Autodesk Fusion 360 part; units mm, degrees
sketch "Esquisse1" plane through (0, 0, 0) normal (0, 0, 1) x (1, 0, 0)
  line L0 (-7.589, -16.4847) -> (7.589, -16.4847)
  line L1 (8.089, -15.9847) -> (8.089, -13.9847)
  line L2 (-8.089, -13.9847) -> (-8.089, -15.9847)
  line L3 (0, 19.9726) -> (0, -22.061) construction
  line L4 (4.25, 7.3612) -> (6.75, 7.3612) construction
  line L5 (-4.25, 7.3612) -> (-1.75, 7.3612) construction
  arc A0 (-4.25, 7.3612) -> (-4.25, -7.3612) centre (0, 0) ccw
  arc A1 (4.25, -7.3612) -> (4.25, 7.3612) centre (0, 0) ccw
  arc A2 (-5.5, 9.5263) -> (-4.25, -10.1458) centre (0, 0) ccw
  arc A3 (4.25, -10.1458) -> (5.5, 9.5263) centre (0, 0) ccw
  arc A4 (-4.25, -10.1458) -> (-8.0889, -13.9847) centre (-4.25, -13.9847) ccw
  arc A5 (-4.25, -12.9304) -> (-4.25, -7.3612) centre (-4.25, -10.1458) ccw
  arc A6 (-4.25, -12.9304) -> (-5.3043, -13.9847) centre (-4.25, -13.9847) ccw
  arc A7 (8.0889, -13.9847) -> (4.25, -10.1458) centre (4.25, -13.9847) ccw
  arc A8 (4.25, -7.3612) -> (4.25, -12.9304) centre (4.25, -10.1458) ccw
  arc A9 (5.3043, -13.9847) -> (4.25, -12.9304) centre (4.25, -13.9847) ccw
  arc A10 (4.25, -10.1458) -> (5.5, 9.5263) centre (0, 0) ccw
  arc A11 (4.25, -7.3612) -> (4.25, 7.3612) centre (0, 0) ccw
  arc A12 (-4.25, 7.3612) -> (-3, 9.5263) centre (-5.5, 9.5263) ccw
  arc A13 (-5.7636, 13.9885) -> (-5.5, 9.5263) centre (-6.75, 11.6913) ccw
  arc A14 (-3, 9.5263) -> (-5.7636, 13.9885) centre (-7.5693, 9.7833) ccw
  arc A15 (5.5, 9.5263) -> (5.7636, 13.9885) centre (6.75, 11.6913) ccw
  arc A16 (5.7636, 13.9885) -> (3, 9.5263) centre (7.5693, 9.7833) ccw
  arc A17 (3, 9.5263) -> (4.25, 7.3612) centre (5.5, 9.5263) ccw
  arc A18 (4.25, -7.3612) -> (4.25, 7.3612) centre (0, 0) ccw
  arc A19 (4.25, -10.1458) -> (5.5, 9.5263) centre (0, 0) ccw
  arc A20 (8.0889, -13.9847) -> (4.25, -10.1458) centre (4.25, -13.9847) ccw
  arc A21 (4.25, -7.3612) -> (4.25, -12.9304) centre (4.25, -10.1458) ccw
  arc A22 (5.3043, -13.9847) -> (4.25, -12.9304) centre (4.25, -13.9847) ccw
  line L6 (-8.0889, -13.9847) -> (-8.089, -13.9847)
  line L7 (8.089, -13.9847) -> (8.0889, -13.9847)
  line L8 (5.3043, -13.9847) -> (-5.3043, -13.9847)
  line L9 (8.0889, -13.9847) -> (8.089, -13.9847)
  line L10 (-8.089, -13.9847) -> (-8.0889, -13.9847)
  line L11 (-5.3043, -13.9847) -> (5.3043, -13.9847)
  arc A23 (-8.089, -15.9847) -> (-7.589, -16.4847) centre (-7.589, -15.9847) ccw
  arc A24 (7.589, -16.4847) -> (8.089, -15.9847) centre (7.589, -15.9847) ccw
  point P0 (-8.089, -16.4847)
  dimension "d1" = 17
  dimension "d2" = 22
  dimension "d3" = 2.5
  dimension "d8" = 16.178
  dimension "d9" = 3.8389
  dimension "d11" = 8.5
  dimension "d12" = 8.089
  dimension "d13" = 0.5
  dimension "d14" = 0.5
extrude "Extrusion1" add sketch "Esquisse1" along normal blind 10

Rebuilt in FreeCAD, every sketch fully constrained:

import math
import FreeCAD as App
import Part
import Sketcher
from FreeCAD import Vector
Q = App.Units.Quantity

doc = App.newDocument("Part")
body = doc.addObject("PartDesign::Body", "Body")

sketch1 = body.newObject("Sketcher::SketchObject", "Sketch")
sketch1.AttachmentSupport = (doc.getObject("XY_Plane"), [""])
sketch1.MapMode = "FlatFace"
sketch1.addGeometry([
    Part.ArcOfCircle(Part.Circle(Vector(-7.6, -16, 0), Vector(0, 0, 1), 0.5), math.radians(180), math.radians(270)),
    Part.LineSegment(Vector(-7.6, -16.5, 0), Vector(7.6, -16.5, 0)),
    Part.ArcOfCircle(Part.Circle(Vector(7.6, -16, 0), Vector(0, 0, 1), 0.5), math.radians(-90), math.radians(0)),
    Part.LineSegment(Vector(8.1, -16, 0), Vector(8.1, -14, 0)),
    Part.ArcOfCircle(Part.Circle(Vector(4.2, -14, 0), Vector(0, 0, 1), 3.8), math.radians(0), math.radians(90)),
    Part.ArcOfCircle(Part.Circle(Vector(0, 0, 0), Vector(0, 0, 1), 11), math.radians(-67), math.radians(60)),
    Part.ArcOfCircle(Part.Circle(Vector(6.8, 11.7, 0), Vector(0, 0, 1), 2.5), math.radians(-120), math.radians(113)),
    Part.ArcOfCircle(Part.Circle(Vector(7.6, 9.8, 0), Vector(0, 0, 1), 4.6), math.radians(113), math.radians(183)),
    Part.ArcOfCircle(Part.Circle(Vector(5.5, 9.5, 0), Vector(0, 0, 1), 2.5), math.radians(180), math.radians(240)),
    Part.ArcOfCircle(Part.Circle(Vector(0, 0, 0), Vector(0, 0, 1), 8.5), math.radians(-60), math.radians(60)),
    Part.ArcOfCircle(Part.Circle(Vector(4.2, -10.1, 0), Vector(0, 0, 1), 2.8), math.radians(90), math.radians(270)),
    Part.ArcOfCircle(Part.Circle(Vector(4.2, -14, 0), Vector(0, 0, 1), 1.1), math.radians(0), math.radians(90)),
    Part.LineSegment(Vector(5.3, -14, 0), Vector(-5.3, -14, 0)),
    Part.ArcOfCircle(Part.Circle(Vector(-4.2, -14, 0), Vector(0, 0, 1), 1.1), math.radians(90), math.radians(180)),
    Part.ArcOfCircle(Part.Circle(Vector(-4.2, -10.1, 0), Vector(0, 0, 1), 2.8), math.radians(-90), math.radians(90)),
    Part.ArcOfCircle(Part.Circle(Vector(0, 0, 0), Vector(0, 0, 1), 8.5), math.radians(120), math.radians(240)),
    Part.ArcOfCircle(Part.Circle(Vector(-5.5, 9.5, 0), Vector(0, 0, 1), 2.5), math.radians(-60), math.radians(0)),
    Part.ArcOfCircle(Part.Circle(Vector(-7.6, 9.8, 0), Vector(0, 0, 1), 4.6), math.radians(-3), math.radians(67)),
    Part.ArcOfCircle(Part.Circle(Vector(-6.8, 11.7, 0), Vector(0, 0, 1), 2.5), math.radians(67), math.radians(300)),
    Part.ArcOfCircle(Part.Circle(Vector(0, 0, 0), Vector(0, 0, 1), 11), math.radians(120), math.radians(247)),
    Part.ArcOfCircle(Part.Circle(Vector(-4.2, -14, 0), Vector(0, 0, 1), 3.8), math.radians(90), math.radians(180)),
    Part.LineSegment(Vector(-8.1, -14, 0), Vector(-8.1, -16, 0)),
], False)
sketch1.addConstraint([
    Sketcher.Constraint("Tangent", 0, 2, 1, 1),
    Sketcher.Constraint("Tangent", 1, 2, 2, 1),
    Sketcher.Constraint("Tangent", 2, 2, 3, 1),
    Sketcher.Constraint("Tangent", 3, 2, 4, 1),
    Sketcher.Constraint("Coincident", 4, 2, 5, 1),
    Sketcher.Constraint("Tangent", 5, 2, 6, 1),
    Sketcher.Constraint("Tangent", 6, 2, 7, 1),
    Sketcher.Constraint("Coincident", 7, 2, 8, 1),
    Sketcher.Constraint("Tangent", 8, 2, 9, 2),
    Sketcher.Constraint("Coincident", 9, 1, 10, 1),
    Sketcher.Constraint("Tangent", 10, 2, 11, 2),
    Sketcher.Constraint("Coincident", 11, 1, 12, 1),
    Sketcher.Constraint("Coincident", 12, 2, 13, 2),
    Sketcher.Constraint("Tangent", 13, 1, 14, 1),
    Sketcher.Constraint("Coincident", 14, 2, 15, 2),
    Sketcher.Constraint("Tangent", 15, 1, 16, 1),
    Sketcher.Constraint("Coincident", 16, 2, 17, 1),
    Sketcher.Constraint("Tangent", 17, 2, 18, 1),
    Sketcher.Constraint("Tangent", 18, 2, 19, 1),
    Sketcher.Constraint("Coincident", 19, 2, 20, 1),
    Sketcher.Constraint("Tangent", 20, 2, 21, 1),
    Sketcher.Constraint("Tangent", 21, 2, 0, 1),
    Sketcher.Constraint("Horizontal", 1),
    Sketcher.Constraint("Vertical", 3),
    Sketcher.Constraint("Horizontal", 12),
    Sketcher.Constraint("Vertical", 21),
    Sketcher.Constraint("Coincident", 5, 3, -1, 1),
    Sketcher.Constraint("Coincident", 9, 3, -1, 1),
    Sketcher.Constraint("Coincident", 15, 3, -1, 1),
    Sketcher.Constraint("Coincident", 19, 3, -1, 1),
    Sketcher.Constraint("Coincident", 11, 3, 4, 3),
    Sketcher.Constraint("Coincident", 20, 3, 13, 3),
    Sketcher.Constraint("Coincident", 4, 2, 10, 3),
    Sketcher.Constraint("Coincident", 5, 2, 8, 3),
    Sketcher.Constraint("Coincident", 18, 2, 16, 3),
    Sketcher.Constraint("Coincident", 19, 2, 14, 3),
    Sketcher.Constraint("Equal", 0, 2),
    Sketcher.Constraint("Equal", 6, 8),
    Sketcher.Constraint("Equal", 11, 13),
    Sketcher.Constraint("Equal", 10, 14),
    Sketcher.Constraint("Equal", 9, 15),
    Sketcher.Constraint("Equal", 8, 16),
    Sketcher.Constraint("Equal", 7, 17),
    Sketcher.Constraint("Equal", 16, 18),
    Sketcher.Constraint("Symmetric", 4, 3, 13, 3, -2),
    Sketcher.Constraint("Symmetric", 7, 3, 17, 3, -2),
    Sketcher.Constraint("Horizontal", 5, 2, 7, 2),
    Sketcher.Constraint("Horizontal", 3, 2, 11, 1),
    Sketcher.Constraint("Vertical", 4, 3, 10, 3),
    Sketcher.Constraint("Vertical", 4, 2, 8, 2),
    Sketcher.Constraint("Vertical", 8, 2, 9, 1),
    Sketcher.Constraint("Radius", 5, Q("11 mm")),
    Sketcher.Constraint("Radius", 0, Q("0.5 mm")),
    Sketcher.Constraint("Radius", 6, Q("2.5 mm")),
    Sketcher.Constraint("Radius", 4, Q("3.839 mm")),
    Sketcher.Constraint("DistanceX", 4, 3, 6, 3, Q("2.5 mm")),
    Sketcher.Constraint("DistanceY", 0, 2, 13, 3, Q("2.5 mm")),
    Sketcher.Constraint("Radius", 7, Q("4.5765 mm")),
])
pad1 = body.newObject("PartDesign::Pad", "Pad")
pad1.Profile = sketch1
pad1.Length = 10

doc.recompute()
